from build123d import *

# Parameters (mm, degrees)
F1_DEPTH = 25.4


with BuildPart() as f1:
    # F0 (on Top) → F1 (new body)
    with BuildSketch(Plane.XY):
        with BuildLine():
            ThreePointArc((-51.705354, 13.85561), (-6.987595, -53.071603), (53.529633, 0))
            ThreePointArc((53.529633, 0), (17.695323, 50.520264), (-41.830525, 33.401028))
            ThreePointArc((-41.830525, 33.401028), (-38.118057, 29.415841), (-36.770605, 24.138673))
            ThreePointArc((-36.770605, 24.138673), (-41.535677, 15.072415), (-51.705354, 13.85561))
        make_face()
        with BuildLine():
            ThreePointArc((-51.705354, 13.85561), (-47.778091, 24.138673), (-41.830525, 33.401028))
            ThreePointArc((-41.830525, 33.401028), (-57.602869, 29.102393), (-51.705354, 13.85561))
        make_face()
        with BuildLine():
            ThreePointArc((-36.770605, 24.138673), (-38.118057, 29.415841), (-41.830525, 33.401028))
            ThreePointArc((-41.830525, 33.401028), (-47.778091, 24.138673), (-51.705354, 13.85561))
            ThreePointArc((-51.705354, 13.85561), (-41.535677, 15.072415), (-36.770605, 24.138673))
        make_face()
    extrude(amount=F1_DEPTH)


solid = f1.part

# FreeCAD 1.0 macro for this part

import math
import FreeCAD as App
import Part
import Sketcher

V = App.Vector
Q = App.Units.Quantity

doc = App.newDocument("Part")
body = doc.addObject("PartDesign::Body", "Body")

# Sketch on XY plane
sketch1 = doc.addObject("Sketcher::SketchObject", "Sketch")
body.addObject(sketch1)
sketch1.AttachmentSupport = (doc.XY_Plane, [""])
sketch1.MapMode = "FlatFace"
sketch1.addGeometry(Part.ArcOfCircle(Part.Circle(V(0, 0, 0), V(0, 0, 1), 54), math.radians(165), math.radians(360)), False)
sketch1.addGeometry(Part.ArcOfCircle(Part.Circle(V(0, 0, 0), V(0, 0, 1), 54), math.radians(0), math.radians(141)), False)
sketch1.addGeometry(Part.ArcOfCircle(Part.Circle(V(-48, 24, 0), V(0, 0, 1), 11), math.radians(57), math.radians(249)), False)
sketch1.addConstraint(Sketcher.Constraint("Tangent", 0, 2, 1, 1))
sketch1.addConstraint(Sketcher.Constraint("Coincident", 1, 2, 2, 1))
sketch1.addConstraint(Sketcher.Constraint("Coincident", 2, 2, 0, 1))
sketch1.addConstraint(Sketcher.Constraint("Coincident", 0, 3, -1, 1))
sketch1.addConstraint(Sketcher.Constraint("Equal", 0, 1))
sketch1.addConstraint(Sketcher.Constraint("PointOnObject", 0, 2, -1))
sketch1.addConstraint(Sketcher.Constraint("Radius", 0, 53.529633))
sketch1.addConstraint(Sketcher.Constraint("Radius", 2, 11.007487))
sketch1.addConstraint(Sketcher.Constraint("DistanceX", 2, 3, -1, 1, 47.778092))
sketch1.addConstraint(Sketcher.Constraint("DistanceY", -1, 1, 2, 2, 13.85561))
pad1 = doc.addObject("PartDesign::Pad", "Pad")
body.addObject(pad1)
pad1.Profile = sketch1
pad1.Length = Q("1 in")

doc.recompute()
